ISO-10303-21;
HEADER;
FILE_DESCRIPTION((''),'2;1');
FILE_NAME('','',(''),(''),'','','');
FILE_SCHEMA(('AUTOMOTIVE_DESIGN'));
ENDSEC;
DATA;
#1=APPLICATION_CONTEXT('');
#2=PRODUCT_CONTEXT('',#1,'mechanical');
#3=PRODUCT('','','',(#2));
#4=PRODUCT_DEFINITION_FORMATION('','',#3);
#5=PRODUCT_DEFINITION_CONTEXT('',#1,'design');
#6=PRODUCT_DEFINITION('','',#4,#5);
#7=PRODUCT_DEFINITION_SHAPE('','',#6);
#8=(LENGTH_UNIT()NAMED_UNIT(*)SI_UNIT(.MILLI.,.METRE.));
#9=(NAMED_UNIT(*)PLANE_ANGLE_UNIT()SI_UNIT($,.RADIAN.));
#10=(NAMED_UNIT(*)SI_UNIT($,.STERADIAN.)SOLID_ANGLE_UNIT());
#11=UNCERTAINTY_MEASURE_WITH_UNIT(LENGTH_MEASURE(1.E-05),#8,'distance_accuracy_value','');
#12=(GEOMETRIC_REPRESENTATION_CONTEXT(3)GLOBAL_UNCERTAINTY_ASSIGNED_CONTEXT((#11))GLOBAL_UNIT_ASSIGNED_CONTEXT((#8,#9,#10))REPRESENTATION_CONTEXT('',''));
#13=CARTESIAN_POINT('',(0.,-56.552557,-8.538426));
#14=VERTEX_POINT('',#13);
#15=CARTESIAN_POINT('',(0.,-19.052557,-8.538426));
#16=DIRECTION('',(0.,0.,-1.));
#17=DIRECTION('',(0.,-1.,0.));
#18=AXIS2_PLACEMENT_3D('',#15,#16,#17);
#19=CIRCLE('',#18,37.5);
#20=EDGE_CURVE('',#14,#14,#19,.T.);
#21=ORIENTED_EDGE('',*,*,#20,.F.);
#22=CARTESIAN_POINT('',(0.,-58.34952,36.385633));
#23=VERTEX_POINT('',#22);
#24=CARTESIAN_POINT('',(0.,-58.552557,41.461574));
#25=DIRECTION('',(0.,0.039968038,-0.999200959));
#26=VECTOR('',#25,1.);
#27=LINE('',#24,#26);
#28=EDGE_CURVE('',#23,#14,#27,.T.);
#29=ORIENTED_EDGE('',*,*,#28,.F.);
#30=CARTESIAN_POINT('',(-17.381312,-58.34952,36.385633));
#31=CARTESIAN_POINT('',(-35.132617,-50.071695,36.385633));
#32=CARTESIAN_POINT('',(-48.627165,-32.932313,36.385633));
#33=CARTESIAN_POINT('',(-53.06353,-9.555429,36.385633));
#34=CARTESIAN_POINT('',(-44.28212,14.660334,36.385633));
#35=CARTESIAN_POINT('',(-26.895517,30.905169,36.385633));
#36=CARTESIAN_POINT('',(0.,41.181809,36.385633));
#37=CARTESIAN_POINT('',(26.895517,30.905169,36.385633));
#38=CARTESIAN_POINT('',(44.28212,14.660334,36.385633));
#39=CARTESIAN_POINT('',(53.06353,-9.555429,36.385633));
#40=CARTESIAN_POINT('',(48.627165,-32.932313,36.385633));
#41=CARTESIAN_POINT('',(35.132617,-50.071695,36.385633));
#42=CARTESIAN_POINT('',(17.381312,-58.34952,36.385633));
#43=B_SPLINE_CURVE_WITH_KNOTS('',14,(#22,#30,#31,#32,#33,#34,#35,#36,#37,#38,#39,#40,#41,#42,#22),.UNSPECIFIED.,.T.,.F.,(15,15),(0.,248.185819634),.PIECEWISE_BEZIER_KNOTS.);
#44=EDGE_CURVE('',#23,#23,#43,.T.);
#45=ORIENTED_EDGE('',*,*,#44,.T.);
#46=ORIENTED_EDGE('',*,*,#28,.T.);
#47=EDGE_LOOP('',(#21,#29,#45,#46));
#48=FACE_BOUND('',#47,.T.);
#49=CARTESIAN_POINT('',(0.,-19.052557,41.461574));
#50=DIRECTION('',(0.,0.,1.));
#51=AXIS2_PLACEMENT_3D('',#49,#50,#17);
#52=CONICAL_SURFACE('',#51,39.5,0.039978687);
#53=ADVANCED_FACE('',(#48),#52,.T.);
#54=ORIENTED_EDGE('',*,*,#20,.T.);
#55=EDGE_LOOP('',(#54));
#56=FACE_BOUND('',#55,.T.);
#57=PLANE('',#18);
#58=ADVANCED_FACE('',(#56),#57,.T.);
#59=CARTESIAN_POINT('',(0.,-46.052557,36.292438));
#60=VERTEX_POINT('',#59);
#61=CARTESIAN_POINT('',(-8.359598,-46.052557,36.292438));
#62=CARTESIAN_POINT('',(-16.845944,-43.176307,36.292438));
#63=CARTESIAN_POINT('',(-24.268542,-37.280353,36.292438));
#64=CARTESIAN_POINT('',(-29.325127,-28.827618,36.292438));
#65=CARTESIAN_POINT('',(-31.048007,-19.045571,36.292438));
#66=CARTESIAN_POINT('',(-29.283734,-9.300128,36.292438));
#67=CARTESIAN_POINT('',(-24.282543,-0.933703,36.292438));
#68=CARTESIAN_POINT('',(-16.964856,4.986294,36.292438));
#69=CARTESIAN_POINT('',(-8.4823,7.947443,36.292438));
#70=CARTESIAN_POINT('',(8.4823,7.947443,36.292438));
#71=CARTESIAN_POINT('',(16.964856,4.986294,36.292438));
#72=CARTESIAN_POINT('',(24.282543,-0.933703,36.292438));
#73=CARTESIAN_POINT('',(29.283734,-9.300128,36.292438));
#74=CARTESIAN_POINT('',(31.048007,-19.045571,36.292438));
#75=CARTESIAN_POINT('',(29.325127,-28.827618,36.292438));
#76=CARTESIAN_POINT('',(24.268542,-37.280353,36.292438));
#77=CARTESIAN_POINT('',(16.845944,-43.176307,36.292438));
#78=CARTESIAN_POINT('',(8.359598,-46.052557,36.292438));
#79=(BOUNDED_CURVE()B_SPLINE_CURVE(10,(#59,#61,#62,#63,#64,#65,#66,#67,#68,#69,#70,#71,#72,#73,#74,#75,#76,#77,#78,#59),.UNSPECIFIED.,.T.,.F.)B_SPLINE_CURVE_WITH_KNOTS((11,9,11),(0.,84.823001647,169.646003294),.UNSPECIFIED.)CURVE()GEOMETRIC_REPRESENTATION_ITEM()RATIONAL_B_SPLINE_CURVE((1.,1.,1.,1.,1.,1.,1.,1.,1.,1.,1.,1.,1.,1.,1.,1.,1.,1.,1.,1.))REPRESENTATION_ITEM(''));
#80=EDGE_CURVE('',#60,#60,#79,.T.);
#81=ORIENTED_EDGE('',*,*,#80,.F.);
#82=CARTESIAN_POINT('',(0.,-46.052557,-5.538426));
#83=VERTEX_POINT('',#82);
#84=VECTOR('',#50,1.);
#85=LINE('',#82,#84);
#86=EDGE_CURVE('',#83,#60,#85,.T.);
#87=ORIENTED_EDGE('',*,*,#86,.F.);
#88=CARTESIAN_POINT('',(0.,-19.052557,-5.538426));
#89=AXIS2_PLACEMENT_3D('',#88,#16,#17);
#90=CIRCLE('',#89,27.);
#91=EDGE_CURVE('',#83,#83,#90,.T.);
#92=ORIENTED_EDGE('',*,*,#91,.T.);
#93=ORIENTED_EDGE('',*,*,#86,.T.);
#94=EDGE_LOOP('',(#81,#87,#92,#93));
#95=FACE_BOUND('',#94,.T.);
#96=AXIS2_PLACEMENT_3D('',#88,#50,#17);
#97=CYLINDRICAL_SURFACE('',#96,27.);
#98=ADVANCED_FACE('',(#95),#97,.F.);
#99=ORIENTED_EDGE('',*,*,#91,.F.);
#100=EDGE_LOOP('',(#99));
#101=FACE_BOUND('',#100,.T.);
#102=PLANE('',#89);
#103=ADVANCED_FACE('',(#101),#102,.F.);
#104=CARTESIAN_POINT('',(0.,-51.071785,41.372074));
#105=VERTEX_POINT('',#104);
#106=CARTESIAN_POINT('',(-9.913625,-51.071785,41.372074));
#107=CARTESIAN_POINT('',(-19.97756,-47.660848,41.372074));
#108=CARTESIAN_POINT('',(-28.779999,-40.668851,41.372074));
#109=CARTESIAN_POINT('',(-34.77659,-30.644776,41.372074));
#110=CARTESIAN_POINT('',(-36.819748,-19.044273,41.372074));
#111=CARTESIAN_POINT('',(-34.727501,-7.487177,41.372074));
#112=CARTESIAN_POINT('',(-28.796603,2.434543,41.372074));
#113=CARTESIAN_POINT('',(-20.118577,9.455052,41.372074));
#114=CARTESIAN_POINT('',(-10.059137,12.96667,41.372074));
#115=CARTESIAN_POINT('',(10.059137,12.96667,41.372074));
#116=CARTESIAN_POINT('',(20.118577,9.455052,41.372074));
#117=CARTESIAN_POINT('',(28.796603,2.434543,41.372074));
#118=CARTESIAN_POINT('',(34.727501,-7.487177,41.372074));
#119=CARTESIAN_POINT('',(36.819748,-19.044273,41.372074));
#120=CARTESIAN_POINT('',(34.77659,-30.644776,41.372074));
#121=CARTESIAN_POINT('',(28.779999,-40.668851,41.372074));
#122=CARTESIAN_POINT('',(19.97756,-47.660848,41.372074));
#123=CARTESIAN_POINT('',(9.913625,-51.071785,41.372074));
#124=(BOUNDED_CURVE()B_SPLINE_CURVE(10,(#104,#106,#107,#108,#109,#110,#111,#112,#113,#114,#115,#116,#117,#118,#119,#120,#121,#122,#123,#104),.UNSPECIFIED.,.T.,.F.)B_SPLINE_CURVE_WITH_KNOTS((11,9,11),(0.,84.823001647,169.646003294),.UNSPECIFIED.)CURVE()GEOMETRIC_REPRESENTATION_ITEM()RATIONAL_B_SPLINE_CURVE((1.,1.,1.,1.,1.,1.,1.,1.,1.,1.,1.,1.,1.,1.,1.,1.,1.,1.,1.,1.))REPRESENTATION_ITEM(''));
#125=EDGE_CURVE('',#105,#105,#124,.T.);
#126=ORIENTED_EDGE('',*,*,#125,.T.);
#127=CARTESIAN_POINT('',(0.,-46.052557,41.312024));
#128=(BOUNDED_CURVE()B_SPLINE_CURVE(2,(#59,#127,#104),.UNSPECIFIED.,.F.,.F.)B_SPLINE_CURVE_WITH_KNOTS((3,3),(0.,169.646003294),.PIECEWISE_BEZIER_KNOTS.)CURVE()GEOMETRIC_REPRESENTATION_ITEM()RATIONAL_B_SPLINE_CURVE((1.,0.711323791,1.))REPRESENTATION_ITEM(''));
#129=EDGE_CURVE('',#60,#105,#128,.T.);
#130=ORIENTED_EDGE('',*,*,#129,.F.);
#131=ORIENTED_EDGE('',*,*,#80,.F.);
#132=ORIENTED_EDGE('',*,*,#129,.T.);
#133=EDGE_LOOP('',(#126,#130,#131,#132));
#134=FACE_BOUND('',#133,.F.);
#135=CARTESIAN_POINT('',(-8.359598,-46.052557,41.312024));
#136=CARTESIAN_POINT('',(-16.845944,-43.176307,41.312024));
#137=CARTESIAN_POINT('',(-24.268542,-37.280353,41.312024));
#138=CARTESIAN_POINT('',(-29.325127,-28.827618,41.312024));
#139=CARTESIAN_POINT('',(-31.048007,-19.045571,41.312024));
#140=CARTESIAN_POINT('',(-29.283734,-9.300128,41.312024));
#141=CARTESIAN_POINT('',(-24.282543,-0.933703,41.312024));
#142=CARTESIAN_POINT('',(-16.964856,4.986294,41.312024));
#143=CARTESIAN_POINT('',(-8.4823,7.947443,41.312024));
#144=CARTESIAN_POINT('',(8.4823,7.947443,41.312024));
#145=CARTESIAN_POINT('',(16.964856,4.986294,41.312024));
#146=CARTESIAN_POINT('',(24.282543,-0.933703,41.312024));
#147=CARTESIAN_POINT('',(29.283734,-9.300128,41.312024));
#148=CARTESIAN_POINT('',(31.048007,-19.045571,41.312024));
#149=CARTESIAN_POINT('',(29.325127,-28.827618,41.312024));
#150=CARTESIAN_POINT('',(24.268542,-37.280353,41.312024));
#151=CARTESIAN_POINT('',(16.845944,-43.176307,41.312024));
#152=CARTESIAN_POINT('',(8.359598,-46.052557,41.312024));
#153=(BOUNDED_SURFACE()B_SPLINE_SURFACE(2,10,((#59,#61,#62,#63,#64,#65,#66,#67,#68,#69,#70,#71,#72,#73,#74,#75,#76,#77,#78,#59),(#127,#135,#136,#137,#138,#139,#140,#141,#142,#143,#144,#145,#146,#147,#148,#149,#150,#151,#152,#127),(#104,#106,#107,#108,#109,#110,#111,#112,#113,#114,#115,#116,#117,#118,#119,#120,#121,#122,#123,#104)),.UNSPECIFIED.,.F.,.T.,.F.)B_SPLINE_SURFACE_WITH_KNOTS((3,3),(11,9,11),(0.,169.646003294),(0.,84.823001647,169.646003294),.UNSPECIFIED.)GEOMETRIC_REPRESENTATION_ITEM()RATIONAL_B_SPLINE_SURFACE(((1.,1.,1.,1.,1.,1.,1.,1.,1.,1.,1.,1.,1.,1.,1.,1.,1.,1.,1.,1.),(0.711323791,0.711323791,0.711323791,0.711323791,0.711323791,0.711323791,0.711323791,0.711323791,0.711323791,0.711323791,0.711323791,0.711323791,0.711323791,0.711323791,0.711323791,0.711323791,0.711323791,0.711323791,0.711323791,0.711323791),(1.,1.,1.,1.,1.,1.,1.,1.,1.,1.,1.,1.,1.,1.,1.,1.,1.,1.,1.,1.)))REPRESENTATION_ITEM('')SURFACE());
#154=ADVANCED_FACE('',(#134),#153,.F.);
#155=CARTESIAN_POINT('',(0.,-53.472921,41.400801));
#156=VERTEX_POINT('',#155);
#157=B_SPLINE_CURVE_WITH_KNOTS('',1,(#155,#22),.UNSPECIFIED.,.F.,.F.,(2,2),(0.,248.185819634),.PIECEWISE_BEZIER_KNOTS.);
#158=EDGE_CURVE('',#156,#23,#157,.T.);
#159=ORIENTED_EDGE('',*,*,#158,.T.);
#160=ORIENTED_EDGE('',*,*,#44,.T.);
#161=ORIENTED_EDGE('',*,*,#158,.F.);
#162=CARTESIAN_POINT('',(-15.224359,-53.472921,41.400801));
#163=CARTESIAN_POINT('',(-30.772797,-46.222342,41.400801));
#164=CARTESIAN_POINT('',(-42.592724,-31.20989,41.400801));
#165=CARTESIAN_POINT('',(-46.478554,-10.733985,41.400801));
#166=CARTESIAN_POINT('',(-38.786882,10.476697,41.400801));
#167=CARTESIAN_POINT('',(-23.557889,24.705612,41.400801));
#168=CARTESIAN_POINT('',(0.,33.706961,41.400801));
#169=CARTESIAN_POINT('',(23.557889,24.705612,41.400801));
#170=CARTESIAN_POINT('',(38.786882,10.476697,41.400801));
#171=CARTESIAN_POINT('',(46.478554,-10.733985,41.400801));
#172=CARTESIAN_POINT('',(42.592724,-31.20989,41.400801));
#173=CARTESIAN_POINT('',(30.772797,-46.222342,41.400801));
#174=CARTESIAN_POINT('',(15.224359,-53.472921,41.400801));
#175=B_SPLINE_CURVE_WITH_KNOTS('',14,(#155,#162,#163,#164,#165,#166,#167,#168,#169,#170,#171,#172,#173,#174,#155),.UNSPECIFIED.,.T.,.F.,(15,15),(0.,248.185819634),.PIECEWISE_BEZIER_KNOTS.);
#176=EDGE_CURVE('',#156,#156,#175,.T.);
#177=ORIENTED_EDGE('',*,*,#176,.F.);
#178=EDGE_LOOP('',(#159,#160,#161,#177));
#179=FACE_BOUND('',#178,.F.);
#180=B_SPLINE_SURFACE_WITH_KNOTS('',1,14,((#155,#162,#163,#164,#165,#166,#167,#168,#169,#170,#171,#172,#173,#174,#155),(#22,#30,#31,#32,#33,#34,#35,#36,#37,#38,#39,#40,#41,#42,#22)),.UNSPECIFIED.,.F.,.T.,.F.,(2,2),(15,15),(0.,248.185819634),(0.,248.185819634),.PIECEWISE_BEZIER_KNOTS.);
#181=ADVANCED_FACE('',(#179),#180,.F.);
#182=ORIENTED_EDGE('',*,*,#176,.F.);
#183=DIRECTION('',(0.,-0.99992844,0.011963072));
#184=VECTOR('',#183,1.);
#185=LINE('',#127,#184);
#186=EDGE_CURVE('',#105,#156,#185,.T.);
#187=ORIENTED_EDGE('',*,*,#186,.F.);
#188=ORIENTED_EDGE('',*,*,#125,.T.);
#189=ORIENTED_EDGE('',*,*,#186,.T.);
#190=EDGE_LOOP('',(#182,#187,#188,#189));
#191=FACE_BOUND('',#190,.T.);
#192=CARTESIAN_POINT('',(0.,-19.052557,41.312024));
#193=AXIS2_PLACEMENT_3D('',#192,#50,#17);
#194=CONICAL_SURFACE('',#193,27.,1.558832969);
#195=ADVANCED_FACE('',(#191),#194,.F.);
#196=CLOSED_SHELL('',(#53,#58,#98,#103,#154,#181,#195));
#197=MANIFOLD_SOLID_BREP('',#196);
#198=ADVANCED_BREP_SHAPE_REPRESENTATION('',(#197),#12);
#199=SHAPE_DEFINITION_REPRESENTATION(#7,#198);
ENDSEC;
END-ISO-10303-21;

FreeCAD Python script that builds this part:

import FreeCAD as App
import Part
import Sketcher

V = App.Vector
Q = App.Units.Quantity


def edges_at(feature, points):
    """Names of the edges that pass closest to the given points."""
    edges = feature.Shape.Edges
    near = lambda p: min(range(len(edges)), key=lambda i: edges[i].distToShape(Part.Vertex(*p))[0])
    return sorted({f"Edge{near(p) + 1}" for p in points})

doc = App.newDocument("Part")
body = doc.addObject("PartDesign::Body", "Body")

# Sketch on YZ plane
sketch1 = body.newObject("Sketcher::SketchObject", "Sketch")
sketch1.AttachmentSupport = (doc.getObject("YZ_Plane"), [""])
sketch1.MapMode = "FlatFace"
sketch1.addGeometry([
    Part.LineSegment(V(-46.052557, -5.538426, 0), V(-46.052557, 41.312024, 0)),  # 0
    Part.LineSegment(V(-46.052557, 41.312024, 0), V(-58.552557, 41.461574, 0)),  # 1
    Part.LineSegment(V(-58.552557, 41.461574, 0), V(-56.552557, -8.538426, 0)),  # 2
    Part.LineSegment(V(-56.552557, -8.538426, 0), V(-19.052557, -8.538426, 0)),  # 3
    Part.LineSegment(V(-19.052557, -8.538426, 0), V(-19.052557, -5.538426, 0)),  # 4
    Part.LineSegment(V(-19.052557, -5.538426, 0), V(-46.052557, -5.538426, 0)),  # 5
], False)
sketch1.addGeometry(Part.LineSegment(V(-19.052557, 41.461574, 0), V(-19.052557, -8.538426, 0)), True)  # axis
sketch1.addConstraint([
    Sketcher.Constraint("Coincident", 0, 2, 1, 1),
    Sketcher.Constraint("Coincident", 1, 2, 2, 1),
    Sketcher.Constraint("Coincident", 2, 2, 3, 1),
    Sketcher.Constraint("Coincident", 3, 2, 4, 1),
    Sketcher.Constraint("Coincident", 4, 2, 5, 1),
    Sketcher.Constraint("Coincident", 5, 2, 0, 1),
    Sketcher.Constraint("Vertical", 0),
    Sketcher.Constraint("Horizontal", 3),
    Sketcher.Constraint("Vertical", 4),
    Sketcher.Constraint("Horizontal", 5),
    Sketcher.Constraint("Vertical", 6),
    Sketcher.Constraint("Coincident", 6, 2, 3, 2),
    Sketcher.Constraint("Horizontal", 1, 2, 6, 1),
    Sketcher.Constraint("DistanceX", 5, 2, 5, 1, Q("27 mm")),
    Sketcher.Constraint("DistanceY", 4, 1, 4, 2, Q("3 mm")),
    Sketcher.Constraint("DistanceY", 6, 2, 6, 1, Q("50 mm")),
    Sketcher.Constraint("DistanceX", 3, 1, 3, 2, Q("37.5 mm")),
    Sketcher.Constraint("DistanceX", 1, 2, 2, 2, Q("2 mm")),
    Sketcher.Constraint("DistanceY", 0, 1, 0, 2, Q("46.850451 mm")),
    Sketcher.Constraint("DistanceX", 0, 2, -1, 1, Q("46.052557 mm")),
    Sketcher.Constraint("DistanceY", -1, 1, 0, 2, Q("41.312024 mm")),
])
revolution = body.newObject("PartDesign::Revolution", "Revolution")
revolution.Profile = sketch1
revolution.ReferenceAxis = (sketch1, ["Axis0"])
revolution.Angle = 360
doc.recompute()

fillet = body.newObject("PartDesign::Fillet", "Fillet")
fillet.Base = (revolution, edges_at(revolution, [(0, 7.947, 41.312)]))
fillet.Radius = 5.08
doc.recompute()

chamfer = body.newObject("PartDesign::Chamfer", "Chamfer")
chamfer.Base = (fillet, edges_at(fillet, [(0, 20.447, 41.462)]))
chamfer.Size = 5.08

doc.recompute()
